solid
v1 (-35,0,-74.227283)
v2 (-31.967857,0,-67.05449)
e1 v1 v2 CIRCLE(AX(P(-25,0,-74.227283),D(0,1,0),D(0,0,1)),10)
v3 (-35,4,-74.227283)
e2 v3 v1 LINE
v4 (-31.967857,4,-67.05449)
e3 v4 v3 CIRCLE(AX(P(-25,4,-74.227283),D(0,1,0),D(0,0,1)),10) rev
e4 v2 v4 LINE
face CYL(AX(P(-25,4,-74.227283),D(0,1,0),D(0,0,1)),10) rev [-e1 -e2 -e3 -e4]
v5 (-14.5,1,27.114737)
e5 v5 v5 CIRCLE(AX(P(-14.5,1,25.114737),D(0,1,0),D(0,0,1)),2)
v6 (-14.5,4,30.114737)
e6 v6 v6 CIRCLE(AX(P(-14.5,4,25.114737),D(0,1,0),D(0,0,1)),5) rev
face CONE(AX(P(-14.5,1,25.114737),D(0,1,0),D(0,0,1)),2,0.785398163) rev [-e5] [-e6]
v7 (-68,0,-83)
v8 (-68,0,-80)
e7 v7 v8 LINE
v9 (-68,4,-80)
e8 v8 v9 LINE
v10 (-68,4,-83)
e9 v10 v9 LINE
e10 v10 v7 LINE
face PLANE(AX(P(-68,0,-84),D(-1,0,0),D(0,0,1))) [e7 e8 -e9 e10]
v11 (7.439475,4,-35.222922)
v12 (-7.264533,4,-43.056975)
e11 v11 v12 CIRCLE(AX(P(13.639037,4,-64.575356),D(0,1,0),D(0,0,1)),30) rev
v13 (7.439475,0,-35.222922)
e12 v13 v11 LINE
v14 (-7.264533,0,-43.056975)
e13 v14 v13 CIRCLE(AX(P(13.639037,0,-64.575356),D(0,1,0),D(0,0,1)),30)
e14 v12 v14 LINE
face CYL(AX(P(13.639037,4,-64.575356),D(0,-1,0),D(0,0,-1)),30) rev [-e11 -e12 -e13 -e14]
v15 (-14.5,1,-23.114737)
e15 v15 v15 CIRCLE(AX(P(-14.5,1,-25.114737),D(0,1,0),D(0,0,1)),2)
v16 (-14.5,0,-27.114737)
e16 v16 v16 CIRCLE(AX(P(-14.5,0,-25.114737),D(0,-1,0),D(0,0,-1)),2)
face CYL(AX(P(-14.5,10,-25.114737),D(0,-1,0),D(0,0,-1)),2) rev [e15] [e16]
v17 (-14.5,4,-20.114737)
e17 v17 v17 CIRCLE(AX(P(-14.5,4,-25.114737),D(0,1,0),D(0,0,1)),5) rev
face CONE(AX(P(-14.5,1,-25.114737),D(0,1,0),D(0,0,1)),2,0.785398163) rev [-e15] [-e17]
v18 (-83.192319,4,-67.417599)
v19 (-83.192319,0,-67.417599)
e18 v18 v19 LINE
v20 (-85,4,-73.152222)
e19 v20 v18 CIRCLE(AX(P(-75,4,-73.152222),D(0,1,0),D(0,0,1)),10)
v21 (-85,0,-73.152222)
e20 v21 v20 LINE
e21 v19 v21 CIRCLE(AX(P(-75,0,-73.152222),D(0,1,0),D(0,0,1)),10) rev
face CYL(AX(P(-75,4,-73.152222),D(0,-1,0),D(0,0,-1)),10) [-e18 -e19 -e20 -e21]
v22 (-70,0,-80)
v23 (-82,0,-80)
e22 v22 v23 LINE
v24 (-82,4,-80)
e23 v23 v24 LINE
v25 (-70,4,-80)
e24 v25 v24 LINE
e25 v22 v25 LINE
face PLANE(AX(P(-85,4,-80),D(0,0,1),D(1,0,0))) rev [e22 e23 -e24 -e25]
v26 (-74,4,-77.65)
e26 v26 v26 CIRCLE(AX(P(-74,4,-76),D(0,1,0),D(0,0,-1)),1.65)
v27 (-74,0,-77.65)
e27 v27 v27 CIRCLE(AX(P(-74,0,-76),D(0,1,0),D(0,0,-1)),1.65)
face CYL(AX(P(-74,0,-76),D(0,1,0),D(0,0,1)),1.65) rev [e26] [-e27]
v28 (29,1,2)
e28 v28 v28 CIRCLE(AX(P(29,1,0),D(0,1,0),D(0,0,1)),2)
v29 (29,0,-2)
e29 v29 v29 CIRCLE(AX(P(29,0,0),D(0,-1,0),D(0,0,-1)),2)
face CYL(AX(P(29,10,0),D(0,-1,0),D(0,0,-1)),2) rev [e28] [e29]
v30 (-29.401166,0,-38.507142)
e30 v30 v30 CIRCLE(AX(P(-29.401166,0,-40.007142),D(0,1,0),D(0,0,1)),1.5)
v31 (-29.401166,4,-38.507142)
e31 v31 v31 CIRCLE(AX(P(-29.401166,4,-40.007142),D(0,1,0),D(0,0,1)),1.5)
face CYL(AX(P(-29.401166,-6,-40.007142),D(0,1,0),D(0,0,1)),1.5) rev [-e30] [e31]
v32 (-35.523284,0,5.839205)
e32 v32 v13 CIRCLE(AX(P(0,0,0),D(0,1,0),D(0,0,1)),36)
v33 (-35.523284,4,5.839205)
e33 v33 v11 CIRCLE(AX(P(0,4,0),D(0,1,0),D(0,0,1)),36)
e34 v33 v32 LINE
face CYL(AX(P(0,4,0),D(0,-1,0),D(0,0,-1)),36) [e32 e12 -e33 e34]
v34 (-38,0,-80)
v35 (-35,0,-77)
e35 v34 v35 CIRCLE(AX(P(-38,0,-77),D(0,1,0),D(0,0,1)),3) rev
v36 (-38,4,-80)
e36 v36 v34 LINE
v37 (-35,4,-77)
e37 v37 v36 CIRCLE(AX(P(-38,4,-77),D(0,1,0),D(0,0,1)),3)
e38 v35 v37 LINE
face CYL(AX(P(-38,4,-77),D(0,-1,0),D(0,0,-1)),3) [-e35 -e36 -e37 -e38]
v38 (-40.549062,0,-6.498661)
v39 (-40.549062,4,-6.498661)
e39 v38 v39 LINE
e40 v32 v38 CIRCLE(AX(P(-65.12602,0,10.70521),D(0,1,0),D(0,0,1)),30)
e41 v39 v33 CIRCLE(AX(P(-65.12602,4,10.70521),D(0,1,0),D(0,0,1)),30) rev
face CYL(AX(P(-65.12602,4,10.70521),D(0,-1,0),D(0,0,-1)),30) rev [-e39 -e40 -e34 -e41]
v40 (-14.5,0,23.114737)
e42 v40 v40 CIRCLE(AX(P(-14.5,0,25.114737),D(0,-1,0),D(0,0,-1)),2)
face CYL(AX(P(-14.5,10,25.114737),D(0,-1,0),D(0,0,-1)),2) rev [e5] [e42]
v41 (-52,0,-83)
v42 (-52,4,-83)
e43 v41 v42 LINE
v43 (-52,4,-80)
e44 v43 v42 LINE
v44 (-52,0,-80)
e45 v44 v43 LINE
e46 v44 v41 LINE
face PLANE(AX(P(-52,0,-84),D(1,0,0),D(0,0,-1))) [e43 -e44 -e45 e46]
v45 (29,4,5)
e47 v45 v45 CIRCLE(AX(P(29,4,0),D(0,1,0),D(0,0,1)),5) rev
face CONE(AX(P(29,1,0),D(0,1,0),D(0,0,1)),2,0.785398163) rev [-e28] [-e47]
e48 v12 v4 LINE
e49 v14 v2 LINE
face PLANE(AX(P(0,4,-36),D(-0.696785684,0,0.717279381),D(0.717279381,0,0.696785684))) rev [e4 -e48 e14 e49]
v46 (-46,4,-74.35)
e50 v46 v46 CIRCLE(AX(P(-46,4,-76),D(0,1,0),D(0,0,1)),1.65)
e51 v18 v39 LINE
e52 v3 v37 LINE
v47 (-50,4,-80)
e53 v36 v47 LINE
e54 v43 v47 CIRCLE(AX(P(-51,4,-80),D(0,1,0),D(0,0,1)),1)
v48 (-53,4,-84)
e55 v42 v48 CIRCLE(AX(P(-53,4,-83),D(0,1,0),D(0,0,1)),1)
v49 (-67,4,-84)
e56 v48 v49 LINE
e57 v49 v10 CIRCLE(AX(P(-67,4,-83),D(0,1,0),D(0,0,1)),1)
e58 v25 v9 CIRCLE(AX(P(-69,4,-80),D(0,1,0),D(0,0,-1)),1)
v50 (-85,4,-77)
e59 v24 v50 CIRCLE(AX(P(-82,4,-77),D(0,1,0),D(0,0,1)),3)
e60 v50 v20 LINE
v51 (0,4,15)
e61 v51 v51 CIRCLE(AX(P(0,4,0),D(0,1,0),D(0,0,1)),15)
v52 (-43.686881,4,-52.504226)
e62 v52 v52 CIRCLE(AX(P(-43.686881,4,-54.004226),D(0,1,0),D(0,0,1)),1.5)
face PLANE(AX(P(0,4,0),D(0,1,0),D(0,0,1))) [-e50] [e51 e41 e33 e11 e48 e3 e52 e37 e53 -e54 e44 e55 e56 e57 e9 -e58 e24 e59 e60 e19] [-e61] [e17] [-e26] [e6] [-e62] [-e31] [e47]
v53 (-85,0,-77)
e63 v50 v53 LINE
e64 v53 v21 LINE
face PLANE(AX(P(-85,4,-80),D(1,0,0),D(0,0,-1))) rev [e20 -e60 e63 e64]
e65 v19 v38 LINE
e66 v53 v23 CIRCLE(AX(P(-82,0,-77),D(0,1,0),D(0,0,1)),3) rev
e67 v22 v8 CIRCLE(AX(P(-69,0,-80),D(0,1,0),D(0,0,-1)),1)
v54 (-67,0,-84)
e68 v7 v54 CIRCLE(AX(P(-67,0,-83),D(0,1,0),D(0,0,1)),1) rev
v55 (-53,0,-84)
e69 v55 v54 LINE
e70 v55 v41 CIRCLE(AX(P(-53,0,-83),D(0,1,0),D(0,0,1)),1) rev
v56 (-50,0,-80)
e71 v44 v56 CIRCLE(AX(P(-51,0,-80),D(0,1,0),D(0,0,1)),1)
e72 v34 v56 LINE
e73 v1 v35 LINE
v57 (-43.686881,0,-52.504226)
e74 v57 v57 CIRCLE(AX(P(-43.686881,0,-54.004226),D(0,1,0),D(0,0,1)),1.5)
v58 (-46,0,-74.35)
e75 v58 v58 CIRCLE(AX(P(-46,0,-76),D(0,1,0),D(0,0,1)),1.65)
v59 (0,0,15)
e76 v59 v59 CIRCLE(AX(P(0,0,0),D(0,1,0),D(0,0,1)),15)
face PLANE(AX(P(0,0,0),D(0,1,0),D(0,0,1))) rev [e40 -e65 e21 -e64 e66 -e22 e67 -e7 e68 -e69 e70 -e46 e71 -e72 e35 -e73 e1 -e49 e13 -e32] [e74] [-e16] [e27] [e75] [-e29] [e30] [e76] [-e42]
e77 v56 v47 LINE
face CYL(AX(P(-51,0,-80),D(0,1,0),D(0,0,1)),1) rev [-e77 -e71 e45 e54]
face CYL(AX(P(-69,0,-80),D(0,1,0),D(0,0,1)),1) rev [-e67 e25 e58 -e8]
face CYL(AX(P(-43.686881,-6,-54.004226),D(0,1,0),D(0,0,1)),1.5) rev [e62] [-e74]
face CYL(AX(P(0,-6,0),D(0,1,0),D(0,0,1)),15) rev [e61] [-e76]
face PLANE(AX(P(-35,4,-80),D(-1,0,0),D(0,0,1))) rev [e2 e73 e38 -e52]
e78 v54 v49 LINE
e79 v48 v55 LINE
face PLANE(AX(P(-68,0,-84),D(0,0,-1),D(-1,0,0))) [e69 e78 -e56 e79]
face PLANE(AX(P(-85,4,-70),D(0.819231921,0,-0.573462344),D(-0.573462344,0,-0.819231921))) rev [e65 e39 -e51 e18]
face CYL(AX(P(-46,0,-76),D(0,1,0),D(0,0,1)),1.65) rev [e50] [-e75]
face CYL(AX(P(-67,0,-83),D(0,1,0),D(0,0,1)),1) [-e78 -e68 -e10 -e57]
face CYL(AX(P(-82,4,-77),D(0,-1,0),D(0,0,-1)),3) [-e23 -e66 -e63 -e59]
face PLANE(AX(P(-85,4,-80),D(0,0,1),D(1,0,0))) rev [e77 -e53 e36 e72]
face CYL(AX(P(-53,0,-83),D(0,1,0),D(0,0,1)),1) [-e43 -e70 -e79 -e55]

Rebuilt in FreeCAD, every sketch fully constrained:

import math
import FreeCAD as App
import Part
import Sketcher

V = App.Vector
Q = App.Units.Quantity


def edges_at(feature, points):
    """Names of the edges that pass closest to the given points."""
    edges = feature.Shape.Edges
    near = lambda p: min(range(len(edges)), key=lambda i: edges[i].distToShape(Part.Vertex(*p))[0])
    return sorted({f"Edge{near(p) + 1}" for p in points})


def add_polygon(sketch, points):
    """Adds a closed chain of lines whose ends are joined by coincident constraints."""
    first, n = sketch.GeometryCount, len(points)
    for a, b in zip(points, points[1:] + points[:1]):
        sketch.addGeometry(Part.LineSegment(App.Vector(*a, 0), App.Vector(*b, 0)), False)
    for i in range(n):
        sketch.addConstraint(Sketcher.Constraint("Coincident", first + i, 2, first + (i + 1) % n, 1))

doc = App.newDocument("Part")
params = doc.addObject("Spreadsheet::Sheet", "Params")
for row, (alias, value) in enumerate([
    ("sketch1_radius", "36 mm"),
    ("sketch1_width", "50 mm"),
    ("sketch1_height", "10 mm"),
    ("pad1_length", "4 mm"),
    ("fillet_radius", "30 mm"),
    ("fillet2_radius", "30 mm"),
    ("sketch2_diameter", "3.3 mm"),
    ("pocket1_length", "4 mm"),
    ("fillet3_radius", "10 mm"),
    ("fillet4_radius", "3 mm"),
    ("sketch3_width", "16 mm"),
    ("sketch3_height", "4 mm"),
    ("pad2_length", "4 mm"),
    ("sketch4_radius", "1 mm"),
    ("pocket2_length", "4 mm"),
    ("fillet5_radius", "1 mm"),
    ("sketch5_diameter", "30 mm"),
    ("pocket3_length", "10 mm"),
    ("sketch6_diameter", "4 mm"),
    ("pocket4_length", "10 mm"),
    ("chamfer_size", "3 mm"),
    ("sketch7_diameter", "2.4 mm"),
    ("pocket5_length", "10 mm"),
    ("sketch8_diameter", "3 mm"),
    ("pocket6_length", "10 mm"),
], start=1):
    params.set(f"A{row}", alias)
    params.set(f"B{row}", "=" + value)
    params.setAlias(f"B{row}", alias)

body = doc.addObject("PartDesign::Body", "Body")

# Sketch on XZ plane
sketch1 = body.newObject("Sketcher::SketchObject", "Sketch")
sketch1.AttachmentSupport = (doc.getObject("XZ_Plane"), [""])
sketch1.MapMode = "FlatFace"
sketch1.addGeometry([
    Part.LineSegment(V(-35, -80, 0), V(-85, -80, 0)),  # 0
    Part.LineSegment(V(-85, -80, 0), V(-85, -70, 0)),  # 1
    Part.LineSegment(V(-85, -70, 0), V(-36, 0, 0)),  # 2
    Part.ArcOfCircle(Part.Circle(V(0, 0, 0), V(0, 0, 1), 36), math.radians(-90), math.radians(180)),  # 3
    Part.LineSegment(V(0, -36, 0), V(-35, -70, 0)),  # 4
    Part.LineSegment(V(-35, -70, 0), V(-35, -80, 0)),  # 5
], False)
sketch1.addConstraint([
    Sketcher.Constraint("Coincident", 0, 2, 1, 1),
    Sketcher.Constraint("Coincident", 1, 2, 2, 1),
    Sketcher.Constraint("Coincident", 2, 2, 3, 2),
    Sketcher.Constraint("Coincident", 3, 1, 4, 1),
    Sketcher.Constraint("Coincident", 4, 2, 5, 1),
    Sketcher.Constraint("Coincident", 5, 2, 0, 1),
    Sketcher.Constraint("Horizontal", 0),
    Sketcher.Constraint("Vertical", 1),
    Sketcher.Constraint("Vertical", 5),
    Sketcher.Constraint("Coincident", 3, 3, -1, 1),
    Sketcher.Constraint("PointOnObject", 2, 2, -1),
    Sketcher.Constraint("PointOnObject", 3, 1, -2),
    Sketcher.Constraint("Horizontal", 1, 2, 4, 2),
    Sketcher.Constraint("Radius", 3, Q("36 mm")),
    Sketcher.Constraint("DistanceX", 0, 2, 0, 1, Q("50 mm")),
    Sketcher.Constraint("DistanceY", 1, 1, 1, 2, Q("10 mm")),
    Sketcher.Constraint("DistanceX", 0, 2, -1, 1, Q("85 mm")),
    Sketcher.Constraint("DistanceY", 0, 2, -1, 1, Q("80 mm")),
])
sketch1.setExpression("Constraints[13]", "Params.sketch1_radius")
sketch1.setExpression("Constraints[14]", "Params.sketch1_width")
sketch1.setExpression("Constraints[15]", "Params.sketch1_height")
pad1 = body.newObject("PartDesign::Pad", "Pad")
pad1.Profile = sketch1
pad1.setExpression("Length", "Params.pad1_length")
pad1.Reversed = True
doc.recompute()

fillet = body.newObject("PartDesign::Fillet", "Fillet")
fillet.Base = (pad1, edges_at(pad1, [(0, 2, -36)]))
fillet.setExpression("Radius", "Params.fillet_radius")
doc.recompute()

fillet2 = body.newObject("PartDesign::Fillet", "Fillet001")
fillet2.Base = (fillet, edges_at(fillet, [(-36, 2, 0)]))
fillet2.setExpression("Radius", "Params.fillet2_radius")

# Sketch on XZ plane
sketch2 = body.newObject("Sketcher::SketchObject", "Sketch001")
sketch2.AttachmentSupport = (doc.getObject("XZ_Plane"), [""])
sketch2.MapMode = "FlatFace"
sketch2.AttachmentOffset = App.Placement(V(0, 0, -4), App.Rotation())
sketch2.addGeometry([
    Part.Circle(V(-46, -76, 0), V(0, 0, 1), 1.6),
    Part.Circle(V(-74, -76, 0), V(0, 0, 1), 1.6),
], False)
sketch2.addConstraint([
    Sketcher.Constraint("Equal", 0, 1),
    Sketcher.Constraint("Horizontal", 0, 3, 1, 3),
    Sketcher.Constraint("Diameter", 0, Q("3.3 mm")),
    Sketcher.Constraint("DistanceX", 0, 3, -1, 1, Q("46 mm")),
    Sketcher.Constraint("DistanceY", 0, 3, -1, 1, Q("76 mm")),
    Sketcher.Constraint("DistanceX", 1, 3, -1, 1, Q("74 mm")),
])
sketch2.setExpression("Constraints[2]", "Params.sketch2_diameter")
pocket1 = body.newObject("PartDesign::Pocket", "Pocket")
pocket1.Profile = sketch2
pocket1.setExpression("Length", "Params.pocket1_length")
pocket1.Reversed = True
doc.recompute()

fillet3 = body.newObject("PartDesign::Fillet", "Fillet002")
fillet3.Base = (pocket1, edges_at(pocket1, [(-35, 2, -70), (-85, 2, -70)]))
fillet3.setExpression("Radius", "Params.fillet3_radius")
doc.recompute()

fillet4 = body.newObject("PartDesign::Fillet", "Fillet003")
fillet4.Base = (fillet3, edges_at(fillet3, [(-85, 2, -80), (-35, 2, -80)]))
fillet4.setExpression("Radius", "Params.fillet4_radius")

# Sketch on XZ plane
sketch3 = body.newObject("Sketcher::SketchObject", "Sketch002")
sketch3.AttachmentSupport = (doc.getObject("XZ_Plane"), [""])
sketch3.MapMode = "FlatFace"
sketch3.AttachmentOffset = App.Placement(V(0, 0, -4), App.Rotation())
add_polygon(sketch3, [(-68, -84), (-68, -80), (-52, -80), (-52, -84)])  # lines 0-3
sketch3.addConstraint([
    Sketcher.Constraint("Vertical", 0),
    Sketcher.Constraint("Horizontal", 1),
    Sketcher.Constraint("Vertical", 2),
    Sketcher.Constraint("Horizontal", 3),
    Sketcher.Constraint("DistanceX", 1, 1, 1, 2, Q("16 mm")),
    Sketcher.Constraint("DistanceY", 0, 1, 0, 2, Q("4 mm")),
    Sketcher.Constraint("DistanceX", 0, 2, -1, 1, Q("68 mm")),
    Sketcher.Constraint("DistanceY", 0, 2, -1, 1, Q("80 mm")),
])
sketch3.setExpression("Constraints[8]", "Params.sketch3_width")
sketch3.setExpression("Constraints[9]", "Params.sketch3_height")
pad2 = body.newObject("PartDesign::Pad", "Pad001")
pad2.Profile = sketch3
pad2.setExpression("Length", "Params.pad2_length")

# Sketch on XZ plane
sketch4 = body.newObject("Sketcher::SketchObject", "Sketch003")
sketch4.AttachmentSupport = (doc.getObject("XZ_Plane"), [""])
sketch4.MapMode = "FlatFace"
sketch4.AttachmentOffset = App.Placement(V(0, 0, -4), App.Rotation())
sketch4.addGeometry([
    Part.LineSegment(V(-50, -80, 0), V(-52, -80, 0)),
    Part.ArcOfCircle(Part.Circle(V(-51, -80, 0), V(0, 0, 1), 1), math.radians(0), math.radians(180)),
    Part.LineSegment(V(-68, -80, 0), V(-70, -80, 0)),
    Part.ArcOfCircle(Part.Circle(V(-69, -80, 0), V(0, 0, 1), 1), math.radians(0), math.radians(180)),
], False)
sketch4.addConstraint([
    Sketcher.Constraint("Coincident", 0, 1, 1, 1),
    Sketcher.Constraint("Coincident", 1, 2, 0, 2),
    Sketcher.Constraint("Coincident", 2, 1, 3, 1),
    Sketcher.Constraint("Coincident", 3, 2, 2, 2),
    Sketcher.Constraint("Horizontal", 0),
    Sketcher.Constraint("Horizontal", 2),
    Sketcher.Constraint("Equal", 1, 3),
    Sketcher.Constraint("Horizontal", 1, 3, 3, 3),
    Sketcher.Constraint("Horizontal", 3, 3, 0, 1),
    Sketcher.Constraint("Horizontal", 1, 2, 2, 1),
    Sketcher.Constraint("Radius", 1, Q("1 mm")),
    Sketcher.Constraint("DistanceX", 1, 3, -1, 1, Q("51 mm")),
    Sketcher.Constraint("DistanceY", 1, 3, -1, 1, Q("80 mm")),
    Sketcher.Constraint("DistanceX", 3, 3, -1, 1, Q("69 mm")),
])
sketch4.setExpression("Constraints[10]", "Params.sketch4_radius")
pocket2 = body.newObject("PartDesign::Pocket", "Pocket001")
pocket2.Profile = sketch4
pocket2.setExpression("Length", "Params.pocket2_length")
pocket2.Reversed = True
doc.recompute()

fillet5 = body.newObject("PartDesign::Fillet", "Fillet004")
fillet5.Base = (pocket2, edges_at(pocket2, [(-52, 2, -84), (-68, 2, -84)]))
fillet5.setExpression("Radius", "Params.fillet5_radius")

# Sketch on XZ plane
sketch5 = body.newObject("Sketcher::SketchObject", "Sketch004")
sketch5.AttachmentSupport = (doc.getObject("XZ_Plane"), [""])
sketch5.MapMode = "FlatFace"
sketch5.AttachmentOffset = App.Placement(V(0, 0, -4), App.Rotation())
sketch5.addGeometry(Part.Circle(V(0, 0, 0), V(0, 0, 1), 15), False)
sketch5.addConstraint([
    Sketcher.Constraint("Coincident", 0, 3, -1, 1),
    Sketcher.Constraint("Diameter", 0, Q("30 mm")),
])
sketch5.setExpression("Constraints[1]", "Params.sketch5_diameter")
pocket3 = body.newObject("PartDesign::Pocket", "Pocket002")
pocket3.Profile = sketch5
pocket3.setExpression("Length", "Params.pocket3_length")
pocket3.Reversed = True

# Sketch on XZ plane
sketch6 = body.newObject("Sketcher::SketchObject", "Sketch005")
sketch6.AttachmentSupport = (doc.getObject("XZ_Plane"), [""])
sketch6.MapMode = "FlatFace"
sketch6.addGeometry([
    Part.Circle(V(29, 0, 0), V(0, 0, 1), 2),
    Part.Circle(V(-14.5, -25.1, 0), V(0, 0, 1), 2),
    Part.Circle(V(-14.5, 25.1, 0), V(0, 0, 1), 2),
], False)
sketch6.addConstraint([
    Sketcher.Constraint("Equal", 0, 1),
    Sketcher.Constraint("Equal", 1, 2),
    Sketcher.Constraint("Symmetric", 1, 3, 2, 3, -1),
    Sketcher.Constraint("PointOnObject", 0, 3, -1),
    Sketcher.Constraint("Diameter", 0, Q("4 mm")),
    Sketcher.Constraint("DistanceX", -1, 1, 0, 3, Q("29 mm")),
    Sketcher.Constraint("DistanceX", 1, 3, -1, 1, Q("14.5 mm")),
    Sketcher.Constraint("DistanceY", 1, 3, -1, 1, Q("25.114737 mm")),
])
sketch6.setExpression("Constraints[4]", "Params.sketch6_diameter")
pocket4 = body.newObject("PartDesign::Pocket", "Pocket003")
pocket4.Profile = sketch6
pocket4.setExpression("Length", "Params.pocket4_length")
doc.recompute()

chamfer = body.newObject("PartDesign::Chamfer", "Chamfer")
chamfer.Base = (pocket4, edges_at(pocket4, [(29, 4, 2), (-14.5, 4, -23.115), (-14.5, 4, 27.115)]))
chamfer.setExpression("Size", "Params.chamfer_size")

# Sketch on XZ plane
sketch7 = body.newObject("Sketcher::SketchObject", "Sketch006")
sketch7.AttachmentSupport = (doc.getObject("XZ_Plane"), [""])
sketch7.MapMode = "FlatFace"
sketch7.AttachmentOffset = App.Placement(V(0, 0, -4), App.Rotation())
sketch7.addGeometry([
    Part.Circle(V(-29.4, -40, 0), V(0, 0, 1), 1.2),
    Part.Circle(V(-43.7, -54, 0), V(0, 0, 1), 1.2),
], False)
sketch7.addConstraint([
    Sketcher.Constraint("Equal", 0, 1),
    Sketcher.Constraint("Diameter", 0, Q("2.4 mm")),
    Sketcher.Constraint("DistanceX", 1, 3, -1, 1, Q("43.686881 mm")),
    Sketcher.Constraint("DistanceX", 0, 3, -1, 1, Q("29.401166 mm")),
    Sketcher.Constraint("DistanceY", 0, 3, -1, 1, Q("40.007142 mm")),
    Sketcher.Constraint("DistanceY", 1, 3, -1, 1, Q("54.004226 mm")),
])
sketch7.setExpression("Constraints[1]", "Params.sketch7_diameter")
pocket5 = body.newObject("PartDesign::Pocket", "Pocket004")
pocket5.Profile = sketch7
pocket5.setExpression("Length", "Params.pocket5_length")
pocket5.Reversed = True

# Sketch on XZ plane
sketch8 = body.newObject("Sketcher::SketchObject", "Sketch007")
sketch8.AttachmentSupport = (doc.getObject("XZ_Plane"), [""])
sketch8.MapMode = "FlatFace"
sketch8.AttachmentOffset = App.Placement(V(0, 0, -4), App.Rotation())
sketch8.addGeometry([
    Part.Circle(V(-43.7, -54, 0), V(0, 0, 1), 1.5),
    Part.Circle(V(-29.4, -40, 0), V(0, 0, 1), 1.5),
], False)
sketch8.addConstraint([
    Sketcher.Constraint("Equal", 0, 1),
    Sketcher.Constraint("Diameter", 0, Q("3 mm")),
    Sketcher.Constraint("DistanceX", 0, 3, -1, 1, Q("43.686881 mm")),
    Sketcher.Constraint("DistanceY", 0, 3, -1, 1, Q("54.004226 mm")),
    Sketcher.Constraint("DistanceX", 1, 3, -1, 1, Q("29.401166 mm")),
    Sketcher.Constraint("DistanceY", 1, 3, -1, 1, Q("40.007142 mm")),
])
sketch8.setExpression("Constraints[1]", "Params.sketch8_diameter")
pocket6 = body.newObject("PartDesign::Pocket", "Pocket005")
pocket6.Profile = sketch8
pocket6.setExpression("Length", "Params.pocket6_length")
pocket6.Reversed = True

doc.recompute()
